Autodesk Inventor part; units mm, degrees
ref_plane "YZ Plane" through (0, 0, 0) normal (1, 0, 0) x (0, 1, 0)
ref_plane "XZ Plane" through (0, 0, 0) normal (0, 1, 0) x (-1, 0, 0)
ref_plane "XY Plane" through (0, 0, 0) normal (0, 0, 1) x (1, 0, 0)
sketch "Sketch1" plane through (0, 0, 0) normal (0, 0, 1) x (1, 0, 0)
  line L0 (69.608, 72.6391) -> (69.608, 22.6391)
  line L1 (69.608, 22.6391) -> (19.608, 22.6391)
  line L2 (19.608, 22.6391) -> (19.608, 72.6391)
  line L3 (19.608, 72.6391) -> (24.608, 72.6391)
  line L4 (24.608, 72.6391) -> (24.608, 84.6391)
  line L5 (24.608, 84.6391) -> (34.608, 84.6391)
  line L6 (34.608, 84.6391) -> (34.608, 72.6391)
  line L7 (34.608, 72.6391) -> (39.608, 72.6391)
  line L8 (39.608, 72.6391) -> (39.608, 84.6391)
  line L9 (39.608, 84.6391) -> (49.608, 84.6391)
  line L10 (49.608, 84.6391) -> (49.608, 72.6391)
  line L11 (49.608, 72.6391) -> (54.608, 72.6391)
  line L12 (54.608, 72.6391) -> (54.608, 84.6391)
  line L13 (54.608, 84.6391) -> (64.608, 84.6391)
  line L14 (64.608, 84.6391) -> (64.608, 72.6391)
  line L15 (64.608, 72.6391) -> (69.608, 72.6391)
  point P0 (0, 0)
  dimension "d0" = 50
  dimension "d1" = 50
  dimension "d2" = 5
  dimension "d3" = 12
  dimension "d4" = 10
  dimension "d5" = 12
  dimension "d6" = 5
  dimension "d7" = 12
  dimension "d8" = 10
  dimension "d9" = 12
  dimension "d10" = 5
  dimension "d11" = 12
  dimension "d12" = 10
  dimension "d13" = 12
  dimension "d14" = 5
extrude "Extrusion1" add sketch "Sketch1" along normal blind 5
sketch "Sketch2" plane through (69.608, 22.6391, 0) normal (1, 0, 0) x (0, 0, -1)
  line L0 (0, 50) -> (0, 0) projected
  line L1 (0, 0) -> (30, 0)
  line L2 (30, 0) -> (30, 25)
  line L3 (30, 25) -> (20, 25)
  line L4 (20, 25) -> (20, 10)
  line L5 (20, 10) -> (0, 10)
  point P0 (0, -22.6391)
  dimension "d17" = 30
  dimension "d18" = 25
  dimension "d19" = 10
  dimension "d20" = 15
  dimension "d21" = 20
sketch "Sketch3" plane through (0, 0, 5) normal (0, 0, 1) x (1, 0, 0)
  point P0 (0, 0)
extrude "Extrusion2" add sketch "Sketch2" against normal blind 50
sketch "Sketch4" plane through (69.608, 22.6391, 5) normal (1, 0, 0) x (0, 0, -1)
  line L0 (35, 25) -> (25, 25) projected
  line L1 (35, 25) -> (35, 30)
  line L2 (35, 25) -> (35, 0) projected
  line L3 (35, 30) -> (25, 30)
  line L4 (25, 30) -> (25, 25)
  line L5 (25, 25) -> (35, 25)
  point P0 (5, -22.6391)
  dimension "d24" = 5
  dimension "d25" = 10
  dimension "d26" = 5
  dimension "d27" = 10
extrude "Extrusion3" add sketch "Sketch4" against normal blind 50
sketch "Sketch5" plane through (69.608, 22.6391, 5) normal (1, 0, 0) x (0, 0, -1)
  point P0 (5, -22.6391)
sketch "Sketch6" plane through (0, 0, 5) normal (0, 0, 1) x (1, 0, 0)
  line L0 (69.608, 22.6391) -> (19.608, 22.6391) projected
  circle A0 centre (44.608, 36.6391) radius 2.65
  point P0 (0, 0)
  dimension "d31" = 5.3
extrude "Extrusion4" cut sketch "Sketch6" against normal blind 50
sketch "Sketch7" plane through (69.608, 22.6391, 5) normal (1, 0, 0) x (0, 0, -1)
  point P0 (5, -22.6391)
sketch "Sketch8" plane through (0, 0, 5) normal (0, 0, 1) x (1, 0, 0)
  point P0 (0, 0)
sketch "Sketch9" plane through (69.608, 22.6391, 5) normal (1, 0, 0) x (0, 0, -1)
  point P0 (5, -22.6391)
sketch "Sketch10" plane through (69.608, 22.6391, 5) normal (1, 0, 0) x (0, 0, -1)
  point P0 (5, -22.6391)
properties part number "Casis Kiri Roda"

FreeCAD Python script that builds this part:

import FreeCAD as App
import Part
import Sketcher
Q = App.Units.Quantity


def add_polygon(sketch, points):
    """Adds a closed chain of lines whose ends are joined by coincident constraints."""
    first, n = sketch.GeometryCount, len(points)
    for a, b in zip(points, points[1:] + points[:1]):
        sketch.addGeometry(Part.LineSegment(App.Vector(*a, 0), App.Vector(*b, 0)), False)
    for i in range(n):
        sketch.addConstraint(Sketcher.Constraint("Coincident", first + i, 2, first + (i + 1) % n, 1))

doc = App.newDocument("Part")
params = doc.addObject("Spreadsheet::Sheet", "Params")
for row, (alias, value) in enumerate([
    ("sketch1_width", "5 mm"),
    ("sketch1_width2", "10 mm"),
    ("sketch1_height", "12 mm"),
    ("pad1_length", "5 mm"),
    ("sketch2_width", "10 mm"),
    ("sketch2_width2", "25 mm"),
    ("sketch2_height", "20 mm"),
    ("pad2_length", "50 mm"),
    ("sketch3_width", "5 mm"),
    ("sketch3_height", "10 mm"),
    ("pad3_length", "50 mm"),
    ("sketch4_diameter", "5.3 mm"),
    ("pocket1_length", "50 mm"),
], start=1):
    params.set(f"A{row}", alias)
    params.set(f"B{row}", "=" + value)
    params.setAlias(f"B{row}", alias)

body = doc.addObject("PartDesign::Body", "Body")

sketch1 = doc.addObject("Sketcher::SketchObject", "Sketch")
body.addObject(sketch1)
sketch1.AttachmentSupport = (doc.XY_Plane, [""])
sketch1.MapMode = "FlatFace"
add_polygon(sketch1, [(69.608, 22.6391), (69.608, 72.6391), (64.608, 72.6391), (64.608, 84.6391), (54.608, 84.6391), (54.608, 72.6391), (49.608, 72.6391), (49.608, 84.6391), (39.608, 84.6391), (39.608, 72.6391), (34.608, 72.6391), (34.608, 84.6391), (24.608, 84.6391), (24.608, 72.6391), (19.608, 72.6391), (19.608, 22.6391)])
sketch1.addConstraint(Sketcher.Constraint("Vertical", 0))
sketch1.addConstraint(Sketcher.Constraint("Horizontal", 1))
sketch1.addConstraint(Sketcher.Constraint("Vertical", 2))
sketch1.addConstraint(Sketcher.Constraint("Horizontal", 3))
sketch1.addConstraint(Sketcher.Constraint("Vertical", 4))
sketch1.addConstraint(Sketcher.Constraint("Horizontal", 5))
sketch1.addConstraint(Sketcher.Constraint("Vertical", 6))
sketch1.addConstraint(Sketcher.Constraint("Horizontal", 7))
sketch1.addConstraint(Sketcher.Constraint("Vertical", 8))
sketch1.addConstraint(Sketcher.Constraint("Horizontal", 9))
sketch1.addConstraint(Sketcher.Constraint("Vertical", 10))
sketch1.addConstraint(Sketcher.Constraint("Horizontal", 11))
sketch1.addConstraint(Sketcher.Constraint("Vertical", 12))
sketch1.addConstraint(Sketcher.Constraint("Horizontal", 13))
sketch1.addConstraint(Sketcher.Constraint("Vertical", 14))
sketch1.addConstraint(Sketcher.Constraint("Horizontal", 15))
sketch1.addConstraint(Sketcher.Constraint("Horizontal", 1, 2, 4, 2))
sketch1.addConstraint(Sketcher.Constraint("Horizontal", 3, 2, 6, 2))
sketch1.addConstraint(Sketcher.Constraint("Horizontal", 5, 2, 8, 2))
sketch1.addConstraint(Sketcher.Constraint("Horizontal", 7, 2, 10, 2))
sketch1.addConstraint(Sketcher.Constraint("Horizontal", 9, 2, 12, 2))
sketch1.addConstraint(Sketcher.Constraint("Equal", 1, 5))
sketch1.addConstraint(Sketcher.Constraint("Equal", 3, 7))
sketch1.addConstraint(Sketcher.Constraint("Equal", 5, 9))
sketch1.addConstraint(Sketcher.Constraint("Equal", 7, 11))
sketch1.addConstraint(Sketcher.Constraint("Equal", 9, 13))
sketch1.addConstraint(Sketcher.Constraint("Equal", 15, 0))
sketch1.addConstraint(Sketcher.Constraint("DistanceX", 1, 2, 1, 1, Q("5 mm")))
sketch1.addConstraint(Sketcher.Constraint("DistanceX", 3, 2, 3, 1, Q("10 mm")))
sketch1.addConstraint(Sketcher.Constraint("DistanceY", 2, 1, 2, 2, Q("12 mm")))
sketch1.addConstraint(Sketcher.Constraint("DistanceX", -1, 1, 0, 2, Q("69.608 mm")))
sketch1.addConstraint(Sketcher.Constraint("DistanceY", -1, 1, 0, 2, Q("72.639 mm")))
sketch1.setExpression("Constraints[43]", "Params.sketch1_width")
sketch1.setExpression("Constraints[44]", "Params.sketch1_width2")
sketch1.setExpression("Constraints[45]", "Params.sketch1_height")
pad1 = doc.addObject("PartDesign::Pad", "Pad")
body.addObject(pad1)
pad1.Profile = sketch1
pad1.setExpression("Length", "Params.pad1_length")

sketch2 = doc.addObject("Sketcher::SketchObject", "Sketch001")
body.addObject(sketch2)
sketch2.AttachmentSupport = (doc.YZ_Plane, [""])
sketch2.MapMode = "FlatFace"
sketch2.AttachmentOffset = App.Placement(App.Vector(0, 0, 69.608), App.Rotation())
add_polygon(sketch2, [(32.6391, -20), (32.6391, 0), (22.6391, 0), (22.6391, -30), (47.6391, -30), (47.6391, -20)])
sketch2.addConstraint(Sketcher.Constraint("Vertical", 0))
sketch2.addConstraint(Sketcher.Constraint("Horizontal", 1))
sketch2.addConstraint(Sketcher.Constraint("Vertical", 2))
sketch2.addConstraint(Sketcher.Constraint("Horizontal", 3))
sketch2.addConstraint(Sketcher.Constraint("Vertical", 4))
sketch2.addConstraint(Sketcher.Constraint("Horizontal", 5))
sketch2.addConstraint(Sketcher.Constraint("PointOnObject", 0, 2, -1))
sketch2.addConstraint(Sketcher.Constraint("Equal", 1, 4))
sketch2.addConstraint(Sketcher.Constraint("DistanceX", 1, 2, 1, 1, Q("10 mm")))
sketch2.addConstraint(Sketcher.Constraint("DistanceX", 3, 1, 3, 2, Q("25 mm")))
sketch2.addConstraint(Sketcher.Constraint("DistanceY", 0, 1, 0, 2, Q("20 mm")))
sketch2.addConstraint(Sketcher.Constraint("DistanceX", -1, 1, 0, 2, Q("32.639 mm")))
sketch2.setExpression("Constraints[14]", "Params.sketch2_width")
sketch2.setExpression("Constraints[15]", "Params.sketch2_width2")
sketch2.setExpression("Constraints[16]", "Params.sketch2_height")
pad2 = doc.addObject("PartDesign::Pad", "Pad001")
body.addObject(pad2)
pad2.Profile = sketch2
pad2.setExpression("Length", "Params.pad2_length")
pad2.Reversed = True

sketch3 = doc.addObject("Sketcher::SketchObject", "Sketch002")
body.addObject(sketch3)
sketch3.AttachmentSupport = (doc.YZ_Plane, [""])
sketch3.MapMode = "FlatFace"
sketch3.AttachmentOffset = App.Placement(App.Vector(0, 0, 69.608), App.Rotation())
add_polygon(sketch3, [(47.6391, -20), (47.6391, -30), (52.6391, -30), (52.6391, -20)])
sketch3.addConstraint(Sketcher.Constraint("Vertical", 0))
sketch3.addConstraint(Sketcher.Constraint("Horizontal", 1))
sketch3.addConstraint(Sketcher.Constraint("Vertical", 2))
sketch3.addConstraint(Sketcher.Constraint("Horizontal", 3))
sketch3.addConstraint(Sketcher.Constraint("DistanceX", 1, 1, 1, 2, Q("5 mm")))
sketch3.addConstraint(Sketcher.Constraint("DistanceY", 0, 2, 0, 1, Q("10 mm")))
sketch3.addConstraint(Sketcher.Constraint("DistanceY", 0, 2, -1, 1, Q("30 mm")))
sketch3.addConstraint(Sketcher.Constraint("DistanceX", -1, 1, 0, 2, Q("47.639 mm")))
sketch3.setExpression("Constraints[8]", "Params.sketch3_width")
sketch3.setExpression("Constraints[9]", "Params.sketch3_height")
pad3 = doc.addObject("PartDesign::Pad", "Pad002")
body.addObject(pad3)
pad3.Profile = sketch3
pad3.setExpression("Length", "Params.pad3_length")
pad3.Reversed = True

sketch4 = doc.addObject("Sketcher::SketchObject", "Sketch003")
body.addObject(sketch4)
sketch4.AttachmentSupport = (doc.XY_Plane, [""])
sketch4.MapMode = "FlatFace"
sketch4.AttachmentOffset = App.Placement(App.Vector(0, 0, 5), App.Rotation())
sketch4.addGeometry(Part.Circle(App.Vector(44.608, 36.6391, 0), App.Vector(0, 0, 1), 2.65), False)
sketch4.addConstraint(Sketcher.Constraint("Diameter", 0, Q("5.3 mm")))
sketch4.addConstraint(Sketcher.Constraint("DistanceX", -1, 1, 0, 3, Q("44.608 mm")))
sketch4.addConstraint(Sketcher.Constraint("DistanceY", -1, 1, 0, 3, Q("36.639 mm")))
sketch4.setExpression("Constraints[0]", "Params.sketch4_diameter")
pocket1 = doc.addObject("PartDesign::Pocket", "Pocket")
body.addObject(pocket1)
pocket1.Profile = sketch4
pocket1.setExpression("Length", "Params.pocket1_length")

doc.recompute()
